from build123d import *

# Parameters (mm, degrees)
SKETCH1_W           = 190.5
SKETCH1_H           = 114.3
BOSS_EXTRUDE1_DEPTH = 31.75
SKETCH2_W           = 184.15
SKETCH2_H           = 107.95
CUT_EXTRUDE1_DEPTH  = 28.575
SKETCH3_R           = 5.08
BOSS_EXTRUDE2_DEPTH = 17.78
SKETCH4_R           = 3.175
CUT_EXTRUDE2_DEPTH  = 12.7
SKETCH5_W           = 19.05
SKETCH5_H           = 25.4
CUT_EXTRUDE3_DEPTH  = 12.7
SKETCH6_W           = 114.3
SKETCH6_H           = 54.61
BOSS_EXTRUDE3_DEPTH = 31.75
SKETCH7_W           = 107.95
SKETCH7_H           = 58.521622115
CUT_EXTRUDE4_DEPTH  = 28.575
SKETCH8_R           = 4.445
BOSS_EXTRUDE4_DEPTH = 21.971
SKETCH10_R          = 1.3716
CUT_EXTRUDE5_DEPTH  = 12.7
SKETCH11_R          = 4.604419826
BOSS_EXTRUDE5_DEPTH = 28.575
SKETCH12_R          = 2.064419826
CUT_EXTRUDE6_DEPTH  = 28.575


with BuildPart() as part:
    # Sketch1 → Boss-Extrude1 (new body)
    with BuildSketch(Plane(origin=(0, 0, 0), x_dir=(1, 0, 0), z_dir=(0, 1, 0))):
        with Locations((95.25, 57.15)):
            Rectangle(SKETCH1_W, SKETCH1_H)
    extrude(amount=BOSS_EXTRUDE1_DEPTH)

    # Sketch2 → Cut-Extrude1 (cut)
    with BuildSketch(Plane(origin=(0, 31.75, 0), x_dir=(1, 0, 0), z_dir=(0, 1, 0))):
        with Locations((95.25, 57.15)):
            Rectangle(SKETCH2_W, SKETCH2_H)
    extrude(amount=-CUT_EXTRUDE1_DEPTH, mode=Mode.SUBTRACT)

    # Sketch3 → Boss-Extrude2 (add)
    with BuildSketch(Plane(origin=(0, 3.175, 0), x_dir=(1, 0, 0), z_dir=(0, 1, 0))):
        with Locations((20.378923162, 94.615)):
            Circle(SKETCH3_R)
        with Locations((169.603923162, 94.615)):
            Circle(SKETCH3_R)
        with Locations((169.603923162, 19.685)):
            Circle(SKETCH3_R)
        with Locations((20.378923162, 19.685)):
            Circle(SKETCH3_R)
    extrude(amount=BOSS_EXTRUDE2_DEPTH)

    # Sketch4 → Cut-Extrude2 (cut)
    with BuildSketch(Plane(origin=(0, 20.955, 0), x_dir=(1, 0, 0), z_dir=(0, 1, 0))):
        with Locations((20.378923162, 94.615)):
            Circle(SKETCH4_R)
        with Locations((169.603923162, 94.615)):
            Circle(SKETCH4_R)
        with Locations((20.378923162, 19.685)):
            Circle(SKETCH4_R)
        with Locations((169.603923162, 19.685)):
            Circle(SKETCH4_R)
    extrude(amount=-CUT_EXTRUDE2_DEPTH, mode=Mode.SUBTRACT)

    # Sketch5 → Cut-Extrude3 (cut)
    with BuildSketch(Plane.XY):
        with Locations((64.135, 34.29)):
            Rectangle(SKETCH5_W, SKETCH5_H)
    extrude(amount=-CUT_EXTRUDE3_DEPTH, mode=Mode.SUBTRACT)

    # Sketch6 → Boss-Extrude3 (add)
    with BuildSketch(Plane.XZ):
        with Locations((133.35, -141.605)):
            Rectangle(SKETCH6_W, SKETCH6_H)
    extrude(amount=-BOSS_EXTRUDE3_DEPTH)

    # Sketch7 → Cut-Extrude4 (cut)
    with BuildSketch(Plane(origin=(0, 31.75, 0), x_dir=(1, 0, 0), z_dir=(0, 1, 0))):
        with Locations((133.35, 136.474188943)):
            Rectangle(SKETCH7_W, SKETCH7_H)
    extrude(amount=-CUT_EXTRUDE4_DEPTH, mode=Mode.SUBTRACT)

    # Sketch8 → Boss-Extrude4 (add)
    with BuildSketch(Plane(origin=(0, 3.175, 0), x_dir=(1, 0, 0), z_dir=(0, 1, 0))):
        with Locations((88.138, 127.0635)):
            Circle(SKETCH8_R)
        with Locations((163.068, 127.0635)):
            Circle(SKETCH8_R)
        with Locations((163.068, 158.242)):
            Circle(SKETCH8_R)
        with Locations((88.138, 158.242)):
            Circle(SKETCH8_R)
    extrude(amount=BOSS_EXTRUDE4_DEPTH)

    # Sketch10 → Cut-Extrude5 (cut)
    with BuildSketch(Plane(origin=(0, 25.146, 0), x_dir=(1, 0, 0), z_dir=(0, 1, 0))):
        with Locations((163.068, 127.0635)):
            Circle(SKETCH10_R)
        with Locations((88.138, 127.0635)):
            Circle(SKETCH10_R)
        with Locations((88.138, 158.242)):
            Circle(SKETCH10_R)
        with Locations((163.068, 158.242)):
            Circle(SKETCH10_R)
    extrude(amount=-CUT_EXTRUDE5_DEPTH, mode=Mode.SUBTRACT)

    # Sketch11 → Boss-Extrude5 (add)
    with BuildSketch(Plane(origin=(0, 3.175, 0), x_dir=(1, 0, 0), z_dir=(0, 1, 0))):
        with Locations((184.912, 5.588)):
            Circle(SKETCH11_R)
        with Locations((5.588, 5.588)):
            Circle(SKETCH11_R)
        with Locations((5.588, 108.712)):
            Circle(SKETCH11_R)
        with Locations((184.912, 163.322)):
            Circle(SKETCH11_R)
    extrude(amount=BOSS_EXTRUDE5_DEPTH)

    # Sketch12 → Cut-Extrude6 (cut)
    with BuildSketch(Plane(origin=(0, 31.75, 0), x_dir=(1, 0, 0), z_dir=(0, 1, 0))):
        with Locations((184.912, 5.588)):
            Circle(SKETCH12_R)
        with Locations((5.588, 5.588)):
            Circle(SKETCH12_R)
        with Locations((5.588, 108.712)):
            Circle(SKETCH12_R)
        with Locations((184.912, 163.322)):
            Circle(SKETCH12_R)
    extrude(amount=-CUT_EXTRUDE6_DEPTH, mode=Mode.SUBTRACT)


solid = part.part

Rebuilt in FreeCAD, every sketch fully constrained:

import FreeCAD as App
import Part
import Sketcher
Q = App.Units.Quantity

doc = App.newDocument("Part")
params = doc.addObject("Spreadsheet::Sheet", "Params")
for row, (alias, value) in enumerate([
    ("sketch1_width", "7.5 in"),
    ("sketch1_height", "4.5 in"),
    ("pad1_length", "1.25 in"),
    ("sketch2_width", "7.25 in"),
    ("sketch2_height", "4.25 in"),
    ("pocket1_length", "1.125 in"),
    ("sketch3_diameter", "0.4 in"),
    ("pad2_length", "0.7 in"),
    ("sketch4_diameter", "0.25 in"),
    ("pocket2_length", "0.5 in"),
    ("sketch5_height", "1 in"),
    ("sketch5_width", "0.75 in"),
    ("pocket3_length", "0.5 in"),
    ("sketch6_width", "4.5 in"),
    ("sketch6_height", "2.15 in"),
    ("pad3_length", "1.25 in"),
    ("sketch7_width", "4.25 in"),
    ("pocket4_length", "1.125 in"),
    ("sketch8_diameter", "0.35 in"),
    ("pad4_length", "0.865 in"),
    ("sketch9_diameter", "0.108 in"),
    ("pocket5_length", "0.5 in"),
    ("pad5_length", "1.125 in"),
    ("pocket6_length", "1.125 in"),
], start=1):
    params.set(f"A{row}", alias)
    params.set(f"B{row}", "=" + value)
    params.setAlias(f"B{row}", alias)

body = doc.addObject("PartDesign::Body", "Body")

# Sketch on XZ plane
sketch1 = doc.addObject("Sketcher::SketchObject", "Sketch")
body.addObject(sketch1)
sketch1.AttachmentSupport = (doc.XZ_Plane, [""])
sketch1.MapMode = "FlatFace"
sketch1.addGeometry(Part.LineSegment(App.Vector(0, -114.3, 0), App.Vector(0, 0, 0)), False)
sketch1.addGeometry(Part.LineSegment(App.Vector(0, 0, 0), App.Vector(190.5, 0, 0)), False)
sketch1.addGeometry(Part.LineSegment(App.Vector(190.5, 0, 0), App.Vector(190.5, -114.3, 0)), False)
sketch1.addGeometry(Part.LineSegment(App.Vector(190.5, -114.3, 0), App.Vector(0, -114.3, 0)), False)
sketch1.addConstraint(Sketcher.Constraint("Coincident", 0, 2, 1, 1))
sketch1.addConstraint(Sketcher.Constraint("Coincident", 1, 2, 2, 1))
sketch1.addConstraint(Sketcher.Constraint("Coincident", 2, 2, 3, 1))
sketch1.addConstraint(Sketcher.Constraint("Coincident", 3, 2, 0, 1))
sketch1.addConstraint(Sketcher.Constraint("Vertical", 0))
sketch1.addConstraint(Sketcher.Constraint("Horizontal", 1))
sketch1.addConstraint(Sketcher.Constraint("Vertical", 2))
sketch1.addConstraint(Sketcher.Constraint("Horizontal", 3))
sketch1.addConstraint(Sketcher.Constraint("Coincident", 0, 2, -1, 1))
sketch1.addConstraint(Sketcher.Constraint("DistanceX", 1, 1, 1, 2, Q("7.5 in")))
sketch1.addConstraint(Sketcher.Constraint("DistanceY", 0, 1, 0, 2, Q("4.5 in")))
sketch1.setExpression("Constraints[9]", "Params.sketch1_width")
sketch1.setExpression("Constraints[10]", "Params.sketch1_height")
pad1 = doc.addObject("PartDesign::Pad", "Pad")
body.addObject(pad1)
pad1.Profile = sketch1
pad1.setExpression("Length", "Params.pad1_length")
pad1.Reversed = True

# Sketch on XZ plane
sketch2 = doc.addObject("Sketcher::SketchObject", "Sketch001")
body.addObject(sketch2)
sketch2.AttachmentSupport = (doc.XZ_Plane, [""])
sketch2.MapMode = "FlatFace"
sketch2.AttachmentOffset = App.Placement(App.Vector(0, 0, -1.25 * 25.4), App.Rotation())
sketch2.addGeometry(Part.LineSegment(App.Vector(3.175, -111.125, 0), App.Vector(3.175, -3.175, 0)), False)
sketch2.addGeometry(Part.LineSegment(App.Vector(3.175, -3.175, 0), App.Vector(187.325, -3.175, 0)), False)
sketch2.addGeometry(Part.LineSegment(App.Vector(187.325, -3.175, 0), App.Vector(187.325, -111.125, 0)), False)
sketch2.addGeometry(Part.LineSegment(App.Vector(187.325, -111.125, 0), App.Vector(3.175, -111.125, 0)), False)
sketch2.addConstraint(Sketcher.Constraint("Coincident", 0, 2, 1, 1))
sketch2.addConstraint(Sketcher.Constraint("Coincident", 1, 2, 2, 1))
sketch2.addConstraint(Sketcher.Constraint("Coincident", 2, 2, 3, 1))
sketch2.addConstraint(Sketcher.Constraint("Coincident", 3, 2, 0, 1))
sketch2.addConstraint(Sketcher.Constraint("Vertical", 0))
sketch2.addConstraint(Sketcher.Constraint("Horizontal", 1))
sketch2.addConstraint(Sketcher.Constraint("Vertical", 2))
sketch2.addConstraint(Sketcher.Constraint("Horizontal", 3))
sketch2.addConstraint(Sketcher.Constraint("DistanceX", 1, 1, 1, 2, Q("7.25 in")))
sketch2.addConstraint(Sketcher.Constraint("DistanceY", 0, 1, 0, 2, Q("4.25 in")))
sketch2.addConstraint(Sketcher.Constraint("DistanceX", -1, 1, 0, 2, Q("0.125 in")))
sketch2.addConstraint(Sketcher.Constraint("DistanceY", 0, 2, -1, 1, Q("0.125 in")))
sketch2.setExpression("Constraints[8]", "Params.sketch2_width")
sketch2.setExpression("Constraints[9]", "Params.sketch2_height")
pocket1 = doc.addObject("PartDesign::Pocket", "Pocket")
body.addObject(pocket1)
pocket1.Profile = sketch2
pocket1.setExpression("Length", "Params.pocket1_length")
pocket1.Reversed = True

# Sketch on XZ plane
sketch3 = doc.addObject("Sketcher::SketchObject", "Sketch002")
body.addObject(sketch3)
sketch3.AttachmentSupport = (doc.XZ_Plane, [""])
sketch3.MapMode = "FlatFace"
sketch3.AttachmentOffset = App.Placement(App.Vector(0, 0, -0.125 * 25.4), App.Rotation())
sketch3.addGeometry(Part.Circle(App.Vector(20.378923, -94.615, 0), App.Vector(0, 0, 1), 5.08), False)
sketch3.addGeometry(Part.Circle(App.Vector(169.603923, -94.615, 0), App.Vector(0, 0, 1), 5.08), False)
sketch3.addGeometry(Part.Circle(App.Vector(169.603923, -19.685, 0), App.Vector(0, 0, 1), 5.08), False)
sketch3.addGeometry(Part.Circle(App.Vector(20.378923, -19.685, 0), App.Vector(0, 0, 1), 5.08), False)
sketch3.addConstraint(Sketcher.Constraint("Equal", 0, 1))
sketch3.addConstraint(Sketcher.Constraint("Equal", 1, 2))
sketch3.addConstraint(Sketcher.Constraint("Equal", 2, 3))
sketch3.addConstraint(Sketcher.Constraint("Horizontal", 0, 3, 1, 3))
sketch3.addConstraint(Sketcher.Constraint("Horizontal", 2, 3, 3, 3))
sketch3.addConstraint(Sketcher.Constraint("Vertical", 1, 3, 2, 3))
sketch3.addConstraint(Sketcher.Constraint("Vertical", 0, 3, 3, 3))
sketch3.addConstraint(Sketcher.Constraint("Diameter", 0, Q("0.4 in")))
sketch3.addConstraint(Sketcher.Constraint("DistanceY", 1, 3, 2, 3, Q("2.95 in")))
sketch3.addConstraint(Sketcher.Constraint("DistanceY", 0, 3, -1, 1, Q("3.725 in")))
sketch3.addConstraint(Sketcher.Constraint("DistanceX", 0, 3, 1, 3, Q("5.875 in")))
sketch3.addConstraint(Sketcher.Constraint("DistanceX", -1, 1, 0, 3, Q("20.378923 mm")))
sketch3.setExpression("Constraints[7]", "Params.sketch3_diameter")
pad2 = doc.addObject("PartDesign::Pad", "Pad001")
body.addObject(pad2)
pad2.Profile = sketch3
pad2.setExpression("Length", "Params.pad2_length")
pad2.Reversed = True

# Sketch on XZ plane
sketch4 = doc.addObject("Sketcher::SketchObject", "Sketch003")
body.addObject(sketch4)
sketch4.AttachmentSupport = (doc.XZ_Plane, [""])
sketch4.MapMode = "FlatFace"
sketch4.AttachmentOffset = App.Placement(App.Vector(0, 0, -0.825 * 25.4), App.Rotation())
sketch4.addGeometry(Part.Circle(App.Vector(20.378923, -94.615, 0), App.Vector(0, 0, 1), 3.175), False)
sketch4.addGeometry(Part.Circle(App.Vector(169.603923, -94.615, 0), App.Vector(0, 0, 1), 3.175), False)
sketch4.addGeometry(Part.Circle(App.Vector(20.378923, -19.685, 0), App.Vector(0, 0, 1), 3.175), False)
sketch4.addGeometry(Part.Circle(App.Vector(169.603923, -19.685, 0), App.Vector(0, 0, 1), 3.175), False)
sketch4.addConstraint(Sketcher.Constraint("Equal", 0, 1))
sketch4.addConstraint(Sketcher.Constraint("Equal", 1, 2))
sketch4.addConstraint(Sketcher.Constraint("Equal", 2, 3))
sketch4.addConstraint(Sketcher.Constraint("Horizontal", 0, 3, 1, 3))
sketch4.addConstraint(Sketcher.Constraint("Horizontal", 2, 3, 3, 3))
sketch4.addConstraint(Sketcher.Constraint("Vertical", 0, 3, 2, 3))
sketch4.addConstraint(Sketcher.Constraint("Vertical", 1, 3, 3, 3))
sketch4.addConstraint(Sketcher.Constraint("Diameter", 0, Q("0.25 in")))
sketch4.addConstraint(Sketcher.Constraint("DistanceY", 0, 3, 2, 3, Q("2.95 in")))
sketch4.addConstraint(Sketcher.Constraint("DistanceY", 0, 3, -1, 1, Q("3.725 in")))
sketch4.addConstraint(Sketcher.Constraint("DistanceX", 0, 3, 1, 3, Q("5.875 in")))
sketch4.addConstraint(Sketcher.Constraint("DistanceX", -1, 1, 0, 3, Q("20.378923 mm")))
sketch4.setExpression("Constraints[7]", "Params.sketch4_diameter")
pocket2 = doc.addObject("PartDesign::Pocket", "Pocket001")
body.addObject(pocket2)
pocket2.Profile = sketch4
pocket2.setExpression("Length", "Params.pocket2_length")
pocket2.Reversed = True

# Sketch on XY plane
sketch5 = doc.addObject("Sketcher::SketchObject", "Sketch004")
body.addObject(sketch5)
sketch5.AttachmentSupport = (doc.XY_Plane, [""])
sketch5.MapMode = "FlatFace"
sketch5.addGeometry(Part.LineSegment(App.Vector(54.61, 46.99, 0), App.Vector(54.61, 21.59, 0)), False)
sketch5.addGeometry(Part.LineSegment(App.Vector(54.61, 21.59, 0), App.Vector(73.66, 21.59, 0)), False)
sketch5.addGeometry(Part.LineSegment(App.Vector(73.66, 21.59, 0), App.Vector(73.66, 46.99, 0)), False)
sketch5.addGeometry(Part.LineSegment(App.Vector(73.66, 46.99, 0), App.Vector(54.61, 46.99, 0)), False)
sketch5.addConstraint(Sketcher.Constraint("Coincident", 0, 2, 1, 1))
sketch5.addConstraint(Sketcher.Constraint("Coincident", 1, 2, 2, 1))
sketch5.addConstraint(Sketcher.Constraint("Coincident", 2, 2, 3, 1))
sketch5.addConstraint(Sketcher.Constraint("Coincident", 3, 2, 0, 1))
sketch5.addConstraint(Sketcher.Constraint("Vertical", 0))
sketch5.addConstraint(Sketcher.Constraint("Horizontal", 1))
sketch5.addConstraint(Sketcher.Constraint("Vertical", 2))
sketch5.addConstraint(Sketcher.Constraint("Horizontal", 3))
sketch5.addConstraint(Sketcher.Constraint("DistanceY", 0, 2, 0, 1, Q("1 in")))
sketch5.addConstraint(Sketcher.Constraint("DistanceX", 1, 1, 1, 2, Q("0.75 in")))
sketch5.addConstraint(Sketcher.Constraint("DistanceX", -1, 1, 1, 2, Q("2.9 in")))
sketch5.addConstraint(Sketcher.Constraint("DistanceY", -1, 1, 0, 2, Q("0.85 in")))
sketch5.setExpression("Constraints[8]", "Params.sketch5_height")
sketch5.setExpression("Constraints[9]", "Params.sketch5_width")
pocket3 = doc.addObject("PartDesign::Pocket", "Pocket002")
body.addObject(pocket3)
pocket3.Profile = sketch5
pocket3.setExpression("Length", "Params.pocket3_length")

# Sketch on XZ plane
sketch6 = doc.addObject("Sketcher::SketchObject", "Sketch005")
body.addObject(sketch6)
sketch6.AttachmentSupport = (doc.XZ_Plane, [""])
sketch6.MapMode = "FlatFace"
sketch6.addGeometry(Part.LineSegment(App.Vector(76.2, -114.3, 0), App.Vector(76.2, -168.91, 0)), False)
sketch6.addGeometry(Part.LineSegment(App.Vector(76.2, -168.91, 0), App.Vector(190.5, -168.91, 0)), False)
sketch6.addGeometry(Part.LineSegment(App.Vector(190.5, -168.91, 0), App.Vector(190.5, -114.3, 0)), False)
sketch6.addGeometry(Part.LineSegment(App.Vector(190.5, -114.3, 0), App.Vector(76.2, -114.3, 0)), False)
sketch6.addConstraint(Sketcher.Constraint("Coincident", 0, 2, 1, 1))
sketch6.addConstraint(Sketcher.Constraint("Coincident", 1, 2, 2, 1))
sketch6.addConstraint(Sketcher.Constraint("Coincident", 2, 2, 3, 1))
sketch6.addConstraint(Sketcher.Constraint("Coincident", 3, 2, 0, 1))
sketch6.addConstraint(Sketcher.Constraint("Vertical", 0))
sketch6.addConstraint(Sketcher.Constraint("Horizontal", 1))
sketch6.addConstraint(Sketcher.Constraint("Vertical", 2))
sketch6.addConstraint(Sketcher.Constraint("Horizontal", 3))
sketch6.addConstraint(Sketcher.Constraint("DistanceX", 1, 1, 1, 2, Q("4.5 in")))
sketch6.addConstraint(Sketcher.Constraint("DistanceX", -1, 1, 0, 2, Q("3 in")))
sketch6.addConstraint(Sketcher.Constraint("DistanceY", 0, 2, 0, 1, Q("2.15 in")))
sketch6.addConstraint(Sketcher.Constraint("DistanceY", 2, 2, -1, 1, Q("4.5 in")))
sketch6.setExpression("Constraints[8]", "Params.sketch6_width")
sketch6.setExpression("Constraints[10]", "Params.sketch6_height")
pad3 = doc.addObject("PartDesign::Pad", "Pad002")
body.addObject(pad3)
pad3.Profile = sketch6
pad3.setExpression("Length", "Params.pad3_length")
pad3.Reversed = True

# Sketch on XZ plane
sketch7 = doc.addObject("Sketcher::SketchObject", "Sketch006")
body.addObject(sketch7)
sketch7.AttachmentSupport = (doc.XZ_Plane, [""])
sketch7.MapMode = "FlatFace"
sketch7.AttachmentOffset = App.Placement(App.Vector(0, 0, -1.25 * 25.4), App.Rotation())
sketch7.addGeometry(Part.LineSegment(App.Vector(79.375, -165.735, 0), App.Vector(79.375, -107.213378, 0)), False)
sketch7.addGeometry(Part.LineSegment(App.Vector(79.375, -107.213378, 0), App.Vector(187.325, -107.213378, 0)), False)
sketch7.addGeometry(Part.LineSegment(App.Vector(187.325, -107.213378, 0), App.Vector(187.325, -165.735, 0)), False)
sketch7.addGeometry(Part.LineSegment(App.Vector(187.325, -165.735, 0), App.Vector(79.375, -165.735, 0)), False)
sketch7.addConstraint(Sketcher.Constraint("Coincident", 0, 2, 1, 1))
sketch7.addConstraint(Sketcher.Constraint("Coincident", 1, 2, 2, 1))
sketch7.addConstraint(Sketcher.Constraint("Coincident", 2, 2, 3, 1))
sketch7.addConstraint(Sketcher.Constraint("Coincident", 3, 2, 0, 1))
sketch7.addConstraint(Sketcher.Constraint("Vertical", 0))
sketch7.addConstraint(Sketcher.Constraint("Horizontal", 1))
sketch7.addConstraint(Sketcher.Constraint("Vertical", 2))
sketch7.addConstraint(Sketcher.Constraint("Horizontal", 3))
sketch7.addConstraint(Sketcher.Constraint("DistanceX", 1, 1, 1, 2, Q("4.25 in")))
sketch7.addConstraint(Sketcher.Constraint("DistanceX", -1, 1, 0, 2, Q("3.125 in")))
sketch7.addConstraint(Sketcher.Constraint("DistanceY", 2, 2, -1, 1, Q("6.525 in")))
sketch7.addConstraint(Sketcher.Constraint("DistanceY", 0, 1, 0, 2, Q("58.521622 mm")))
sketch7.setExpression("Constraints[8]", "Params.sketch7_width")
pocket4 = doc.addObject("PartDesign::Pocket", "Pocket003")
body.addObject(pocket4)
pocket4.Profile = sketch7
pocket4.setExpression("Length", "Params.pocket4_length")
pocket4.Reversed = True

# Sketch on XZ plane
sketch8 = doc.addObject("Sketcher::SketchObject", "Sketch007")
body.addObject(sketch8)
sketch8.AttachmentSupport = (doc.XZ_Plane, [""])
sketch8.MapMode = "FlatFace"
sketch8.AttachmentOffset = App.Placement(App.Vector(0, 0, -0.125 * 25.4), App.Rotation())
sketch8.addGeometry(Part.Circle(App.Vector(88.138, -127.0635, 0), App.Vector(0, 0, 1), 4.445), False)
sketch8.addGeometry(Part.Circle(App.Vector(163.068, -127.0635, 0), App.Vector(0, 0, 1), 4.445), False)
sketch8.addGeometry(Part.Circle(App.Vector(163.068, -158.242, 0), App.Vector(0, 0, 1), 4.445), False)
sketch8.addGeometry(Part.Circle(App.Vector(88.138, -158.242, 0), App.Vector(0, 0, 1), 4.445), False)
sketch8.addConstraint(Sketcher.Constraint("Equal", 0, 1))
sketch8.addConstraint(Sketcher.Constraint("Equal", 1, 2))
sketch8.addConstraint(Sketcher.Constraint("Equal", 2, 3))
sketch8.addConstraint(Sketcher.Constraint("Horizontal", 0, 3, 1, 3))
sketch8.addConstraint(Sketcher.Constraint("Horizontal", 2, 3, 3, 3))
sketch8.addConstraint(Sketcher.Constraint("Vertical", 1, 3, 2, 3))
sketch8.addConstraint(Sketcher.Constraint("Vertical", 0, 3, 3, 3))
sketch8.addConstraint(Sketcher.Constraint("Diameter", 0, Q("0.35 in")))
sketch8.addConstraint(Sketcher.Constraint("DistanceX", -1, 1, 0, 3, Q("3.47 in")))
sketch8.addConstraint(Sketcher.Constraint("DistanceX", -1, 1, 1, 3, Q("6.42 in")))
sketch8.addConstraint(Sketcher.Constraint("DistanceY", 2, 3, -1, 1, Q("6.23 in")))
sketch8.addConstraint(Sketcher.Constraint("DistanceY", 0, 3, -1, 1, Q("5.0025 in")))
sketch8.setExpression("Constraints[7]", "Params.sketch8_diameter")
pad4 = doc.addObject("PartDesign::Pad", "Pad003")
body.addObject(pad4)
pad4.Profile = sketch8
pad4.setExpression("Length", "Params.pad4_length")
pad4.Reversed = True

# Sketch on XZ plane
sketch9 = doc.addObject("Sketcher::SketchObject", "Sketch008")
body.addObject(sketch9)
sketch9.AttachmentSupport = (doc.XZ_Plane, [""])
sketch9.MapMode = "FlatFace"
sketch9.AttachmentOffset = App.Placement(App.Vector(0, 0, -0.99 * 25.4), App.Rotation())
sketch9.addGeometry(Part.Circle(App.Vector(163.068, -127.0635, 0), App.Vector(0, 0, 1), 1.3716), False)
sketch9.addGeometry(Part.Circle(App.Vector(88.138, -127.0635, 0), App.Vector(0, 0, 1), 1.3716), False)
sketch9.addGeometry(Part.Circle(App.Vector(88.138, -158.242, 0), App.Vector(0, 0, 1), 1.3716), False)
sketch9.addGeometry(Part.Circle(App.Vector(163.068, -158.242, 0), App.Vector(0, 0, 1), 1.3716), False)
sketch9.addConstraint(Sketcher.Constraint("Equal", 0, 1))
sketch9.addConstraint(Sketcher.Constraint("Equal", 1, 2))
sketch9.addConstraint(Sketcher.Constraint("Equal", 2, 3))
sketch9.addConstraint(Sketcher.Constraint("Horizontal", 0, 3, 1, 3))
sketch9.addConstraint(Sketcher.Constraint("Horizontal", 2, 3, 3, 3))
sketch9.addConstraint(Sketcher.Constraint("Vertical", 1, 3, 2, 3))
sketch9.addConstraint(Sketcher.Constraint("Vertical", 0, 3, 3, 3))
sketch9.addConstraint(Sketcher.Constraint("Diameter", 0, Q("0.108 in")))
sketch9.addConstraint(Sketcher.Constraint("DistanceX", -1, 1, 0, 3, Q("6.42 in")))
sketch9.addConstraint(Sketcher.Constraint("DistanceX", -1, 1, 1, 3, Q("3.47 in")))
sketch9.addConstraint(Sketcher.Constraint("DistanceY", 2, 3, -1, 1, Q("6.23 in")))
sketch9.addConstraint(Sketcher.Constraint("DistanceY", 0, 3, -1, 1, Q("5.0025 in")))
sketch9.setExpression("Constraints[7]", "Params.sketch9_diameter")
pocket5 = doc.addObject("PartDesign::Pocket", "Pocket004")
body.addObject(pocket5)
pocket5.Profile = sketch9
pocket5.setExpression("Length", "Params.pocket5_length")
pocket5.Reversed = True

# Sketch on XZ plane
sketch10 = doc.addObject("Sketcher::SketchObject", "Sketch009")
body.addObject(sketch10)
sketch10.AttachmentSupport = (doc.XZ_Plane, [""])
sketch10.MapMode = "FlatFace"
sketch10.AttachmentOffset = App.Placement(App.Vector(0, 0, -0.125 * 25.4), App.Rotation())
sketch10.addGeometry(Part.Circle(App.Vector(184.912, -5.588, 0), App.Vector(0, 0, 1), 4.60442), False)
sketch10.addGeometry(Part.Circle(App.Vector(5.588, -5.588, 0), App.Vector(0, 0, 1), 4.60442), False)
sketch10.addGeometry(Part.Circle(App.Vector(5.588, -108.712, 0), App.Vector(0, 0, 1), 4.60442), False)
sketch10.addGeometry(Part.Circle(App.Vector(184.912, -163.322, 0), App.Vector(0, 0, 1), 4.60442), False)
sketch10.addConstraint(Sketcher.Constraint("Equal", 0, 1))
sketch10.addConstraint(Sketcher.Constraint("Equal", 1, 2))
sketch10.addConstraint(Sketcher.Constraint("Equal", 2, 3))
sketch10.addConstraint(Sketcher.Constraint("Horizontal", 0, 3, 1, 3))
sketch10.addConstraint(Sketcher.Constraint("Vertical", 1, 3, 2, 3))
sketch10.addConstraint(Sketcher.Constraint("Vertical", 0, 3, 3, 3))
sketch10.addConstraint(Sketcher.Constraint("DistanceX", -1, 1, 0, 3, Q("7.28 in")))
sketch10.addConstraint(Sketcher.Constraint("DistanceY", 0, 3, -1, 1, Q("0.22 in")))
sketch10.addConstraint(Sketcher.Constraint("DistanceX", -1, 1, 1, 3, Q("0.22 in")))
sketch10.addConstraint(Sketcher.Constraint("DistanceY", 2, 3, -1, 1, Q("4.28 in")))
sketch10.addConstraint(Sketcher.Constraint("DistanceY", 3, 3, -1, 1, Q("6.43 in")))
sketch10.addConstraint(Sketcher.Constraint("Diameter", 0, Q("9.20884 mm")))
pad5 = doc.addObject("PartDesign::Pad", "Pad004")
body.addObject(pad5)
pad5.Profile = sketch10
pad5.setExpression("Length", "Params.pad5_length")
pad5.Reversed = True

# Sketch on XZ plane
sketch11 = doc.addObject("Sketcher::SketchObject", "Sketch010")
body.addObject(sketch11)
sketch11.AttachmentSupport = (doc.XZ_Plane, [""])
sketch11.MapMode = "FlatFace"
sketch11.AttachmentOffset = App.Placement(App.Vector(0, 0, -1.25 * 25.4), App.Rotation())
sketch11.addGeometry(Part.Circle(App.Vector(184.912, -5.588, 0), App.Vector(0, 0, 1), 2.06442), False)
sketch11.addGeometry(Part.Circle(App.Vector(5.588, -5.588, 0), App.Vector(0, 0, 1), 2.06442), False)
sketch11.addGeometry(Part.Circle(App.Vector(5.588, -108.712, 0), App.Vector(0, 0, 1), 2.06442), False)
sketch11.addGeometry(Part.Circle(App.Vector(184.912, -163.322, 0), App.Vector(0, 0, 1), 2.06442), False)
sketch11.addConstraint(Sketcher.Constraint("Equal", 0, 1))
sketch11.addConstraint(Sketcher.Constraint("Equal", 1, 2))
sketch11.addConstraint(Sketcher.Constraint("Equal", 2, 3))
sketch11.addConstraint(Sketcher.Constraint("Horizontal", 0, 3, 1, 3))
sketch11.addConstraint(Sketcher.Constraint("Vertical", 1, 3, 2, 3))
sketch11.addConstraint(Sketcher.Constraint("Vertical", 0, 3, 3, 3))
sketch11.addConstraint(Sketcher.Constraint("DistanceX", -1, 1, 0, 3, Q("7.28 in")))
sketch11.addConstraint(Sketcher.Constraint("DistanceY", 0, 3, -1, 1, Q("0.22 in")))
sketch11.addConstraint(Sketcher.Constraint("DistanceX", -1, 1, 1, 3, Q("0.22 in")))
sketch11.addConstraint(Sketcher.Constraint("DistanceY", 2, 3, -1, 1, Q("4.28 in")))
sketch11.addConstraint(Sketcher.Constraint("DistanceY", 3, 3, -1, 1, Q("6.43 in")))
sketch11.addConstraint(Sketcher.Constraint("Diameter", 0, Q("4.12884 mm")))
pocket6 = doc.addObject("PartDesign::Pocket", "Pocket005")
body.addObject(pocket6)
pocket6.Profile = sketch11
pocket6.setExpression("Length", "Params.pocket6_length")
pocket6.Reversed = True

doc.recompute()
